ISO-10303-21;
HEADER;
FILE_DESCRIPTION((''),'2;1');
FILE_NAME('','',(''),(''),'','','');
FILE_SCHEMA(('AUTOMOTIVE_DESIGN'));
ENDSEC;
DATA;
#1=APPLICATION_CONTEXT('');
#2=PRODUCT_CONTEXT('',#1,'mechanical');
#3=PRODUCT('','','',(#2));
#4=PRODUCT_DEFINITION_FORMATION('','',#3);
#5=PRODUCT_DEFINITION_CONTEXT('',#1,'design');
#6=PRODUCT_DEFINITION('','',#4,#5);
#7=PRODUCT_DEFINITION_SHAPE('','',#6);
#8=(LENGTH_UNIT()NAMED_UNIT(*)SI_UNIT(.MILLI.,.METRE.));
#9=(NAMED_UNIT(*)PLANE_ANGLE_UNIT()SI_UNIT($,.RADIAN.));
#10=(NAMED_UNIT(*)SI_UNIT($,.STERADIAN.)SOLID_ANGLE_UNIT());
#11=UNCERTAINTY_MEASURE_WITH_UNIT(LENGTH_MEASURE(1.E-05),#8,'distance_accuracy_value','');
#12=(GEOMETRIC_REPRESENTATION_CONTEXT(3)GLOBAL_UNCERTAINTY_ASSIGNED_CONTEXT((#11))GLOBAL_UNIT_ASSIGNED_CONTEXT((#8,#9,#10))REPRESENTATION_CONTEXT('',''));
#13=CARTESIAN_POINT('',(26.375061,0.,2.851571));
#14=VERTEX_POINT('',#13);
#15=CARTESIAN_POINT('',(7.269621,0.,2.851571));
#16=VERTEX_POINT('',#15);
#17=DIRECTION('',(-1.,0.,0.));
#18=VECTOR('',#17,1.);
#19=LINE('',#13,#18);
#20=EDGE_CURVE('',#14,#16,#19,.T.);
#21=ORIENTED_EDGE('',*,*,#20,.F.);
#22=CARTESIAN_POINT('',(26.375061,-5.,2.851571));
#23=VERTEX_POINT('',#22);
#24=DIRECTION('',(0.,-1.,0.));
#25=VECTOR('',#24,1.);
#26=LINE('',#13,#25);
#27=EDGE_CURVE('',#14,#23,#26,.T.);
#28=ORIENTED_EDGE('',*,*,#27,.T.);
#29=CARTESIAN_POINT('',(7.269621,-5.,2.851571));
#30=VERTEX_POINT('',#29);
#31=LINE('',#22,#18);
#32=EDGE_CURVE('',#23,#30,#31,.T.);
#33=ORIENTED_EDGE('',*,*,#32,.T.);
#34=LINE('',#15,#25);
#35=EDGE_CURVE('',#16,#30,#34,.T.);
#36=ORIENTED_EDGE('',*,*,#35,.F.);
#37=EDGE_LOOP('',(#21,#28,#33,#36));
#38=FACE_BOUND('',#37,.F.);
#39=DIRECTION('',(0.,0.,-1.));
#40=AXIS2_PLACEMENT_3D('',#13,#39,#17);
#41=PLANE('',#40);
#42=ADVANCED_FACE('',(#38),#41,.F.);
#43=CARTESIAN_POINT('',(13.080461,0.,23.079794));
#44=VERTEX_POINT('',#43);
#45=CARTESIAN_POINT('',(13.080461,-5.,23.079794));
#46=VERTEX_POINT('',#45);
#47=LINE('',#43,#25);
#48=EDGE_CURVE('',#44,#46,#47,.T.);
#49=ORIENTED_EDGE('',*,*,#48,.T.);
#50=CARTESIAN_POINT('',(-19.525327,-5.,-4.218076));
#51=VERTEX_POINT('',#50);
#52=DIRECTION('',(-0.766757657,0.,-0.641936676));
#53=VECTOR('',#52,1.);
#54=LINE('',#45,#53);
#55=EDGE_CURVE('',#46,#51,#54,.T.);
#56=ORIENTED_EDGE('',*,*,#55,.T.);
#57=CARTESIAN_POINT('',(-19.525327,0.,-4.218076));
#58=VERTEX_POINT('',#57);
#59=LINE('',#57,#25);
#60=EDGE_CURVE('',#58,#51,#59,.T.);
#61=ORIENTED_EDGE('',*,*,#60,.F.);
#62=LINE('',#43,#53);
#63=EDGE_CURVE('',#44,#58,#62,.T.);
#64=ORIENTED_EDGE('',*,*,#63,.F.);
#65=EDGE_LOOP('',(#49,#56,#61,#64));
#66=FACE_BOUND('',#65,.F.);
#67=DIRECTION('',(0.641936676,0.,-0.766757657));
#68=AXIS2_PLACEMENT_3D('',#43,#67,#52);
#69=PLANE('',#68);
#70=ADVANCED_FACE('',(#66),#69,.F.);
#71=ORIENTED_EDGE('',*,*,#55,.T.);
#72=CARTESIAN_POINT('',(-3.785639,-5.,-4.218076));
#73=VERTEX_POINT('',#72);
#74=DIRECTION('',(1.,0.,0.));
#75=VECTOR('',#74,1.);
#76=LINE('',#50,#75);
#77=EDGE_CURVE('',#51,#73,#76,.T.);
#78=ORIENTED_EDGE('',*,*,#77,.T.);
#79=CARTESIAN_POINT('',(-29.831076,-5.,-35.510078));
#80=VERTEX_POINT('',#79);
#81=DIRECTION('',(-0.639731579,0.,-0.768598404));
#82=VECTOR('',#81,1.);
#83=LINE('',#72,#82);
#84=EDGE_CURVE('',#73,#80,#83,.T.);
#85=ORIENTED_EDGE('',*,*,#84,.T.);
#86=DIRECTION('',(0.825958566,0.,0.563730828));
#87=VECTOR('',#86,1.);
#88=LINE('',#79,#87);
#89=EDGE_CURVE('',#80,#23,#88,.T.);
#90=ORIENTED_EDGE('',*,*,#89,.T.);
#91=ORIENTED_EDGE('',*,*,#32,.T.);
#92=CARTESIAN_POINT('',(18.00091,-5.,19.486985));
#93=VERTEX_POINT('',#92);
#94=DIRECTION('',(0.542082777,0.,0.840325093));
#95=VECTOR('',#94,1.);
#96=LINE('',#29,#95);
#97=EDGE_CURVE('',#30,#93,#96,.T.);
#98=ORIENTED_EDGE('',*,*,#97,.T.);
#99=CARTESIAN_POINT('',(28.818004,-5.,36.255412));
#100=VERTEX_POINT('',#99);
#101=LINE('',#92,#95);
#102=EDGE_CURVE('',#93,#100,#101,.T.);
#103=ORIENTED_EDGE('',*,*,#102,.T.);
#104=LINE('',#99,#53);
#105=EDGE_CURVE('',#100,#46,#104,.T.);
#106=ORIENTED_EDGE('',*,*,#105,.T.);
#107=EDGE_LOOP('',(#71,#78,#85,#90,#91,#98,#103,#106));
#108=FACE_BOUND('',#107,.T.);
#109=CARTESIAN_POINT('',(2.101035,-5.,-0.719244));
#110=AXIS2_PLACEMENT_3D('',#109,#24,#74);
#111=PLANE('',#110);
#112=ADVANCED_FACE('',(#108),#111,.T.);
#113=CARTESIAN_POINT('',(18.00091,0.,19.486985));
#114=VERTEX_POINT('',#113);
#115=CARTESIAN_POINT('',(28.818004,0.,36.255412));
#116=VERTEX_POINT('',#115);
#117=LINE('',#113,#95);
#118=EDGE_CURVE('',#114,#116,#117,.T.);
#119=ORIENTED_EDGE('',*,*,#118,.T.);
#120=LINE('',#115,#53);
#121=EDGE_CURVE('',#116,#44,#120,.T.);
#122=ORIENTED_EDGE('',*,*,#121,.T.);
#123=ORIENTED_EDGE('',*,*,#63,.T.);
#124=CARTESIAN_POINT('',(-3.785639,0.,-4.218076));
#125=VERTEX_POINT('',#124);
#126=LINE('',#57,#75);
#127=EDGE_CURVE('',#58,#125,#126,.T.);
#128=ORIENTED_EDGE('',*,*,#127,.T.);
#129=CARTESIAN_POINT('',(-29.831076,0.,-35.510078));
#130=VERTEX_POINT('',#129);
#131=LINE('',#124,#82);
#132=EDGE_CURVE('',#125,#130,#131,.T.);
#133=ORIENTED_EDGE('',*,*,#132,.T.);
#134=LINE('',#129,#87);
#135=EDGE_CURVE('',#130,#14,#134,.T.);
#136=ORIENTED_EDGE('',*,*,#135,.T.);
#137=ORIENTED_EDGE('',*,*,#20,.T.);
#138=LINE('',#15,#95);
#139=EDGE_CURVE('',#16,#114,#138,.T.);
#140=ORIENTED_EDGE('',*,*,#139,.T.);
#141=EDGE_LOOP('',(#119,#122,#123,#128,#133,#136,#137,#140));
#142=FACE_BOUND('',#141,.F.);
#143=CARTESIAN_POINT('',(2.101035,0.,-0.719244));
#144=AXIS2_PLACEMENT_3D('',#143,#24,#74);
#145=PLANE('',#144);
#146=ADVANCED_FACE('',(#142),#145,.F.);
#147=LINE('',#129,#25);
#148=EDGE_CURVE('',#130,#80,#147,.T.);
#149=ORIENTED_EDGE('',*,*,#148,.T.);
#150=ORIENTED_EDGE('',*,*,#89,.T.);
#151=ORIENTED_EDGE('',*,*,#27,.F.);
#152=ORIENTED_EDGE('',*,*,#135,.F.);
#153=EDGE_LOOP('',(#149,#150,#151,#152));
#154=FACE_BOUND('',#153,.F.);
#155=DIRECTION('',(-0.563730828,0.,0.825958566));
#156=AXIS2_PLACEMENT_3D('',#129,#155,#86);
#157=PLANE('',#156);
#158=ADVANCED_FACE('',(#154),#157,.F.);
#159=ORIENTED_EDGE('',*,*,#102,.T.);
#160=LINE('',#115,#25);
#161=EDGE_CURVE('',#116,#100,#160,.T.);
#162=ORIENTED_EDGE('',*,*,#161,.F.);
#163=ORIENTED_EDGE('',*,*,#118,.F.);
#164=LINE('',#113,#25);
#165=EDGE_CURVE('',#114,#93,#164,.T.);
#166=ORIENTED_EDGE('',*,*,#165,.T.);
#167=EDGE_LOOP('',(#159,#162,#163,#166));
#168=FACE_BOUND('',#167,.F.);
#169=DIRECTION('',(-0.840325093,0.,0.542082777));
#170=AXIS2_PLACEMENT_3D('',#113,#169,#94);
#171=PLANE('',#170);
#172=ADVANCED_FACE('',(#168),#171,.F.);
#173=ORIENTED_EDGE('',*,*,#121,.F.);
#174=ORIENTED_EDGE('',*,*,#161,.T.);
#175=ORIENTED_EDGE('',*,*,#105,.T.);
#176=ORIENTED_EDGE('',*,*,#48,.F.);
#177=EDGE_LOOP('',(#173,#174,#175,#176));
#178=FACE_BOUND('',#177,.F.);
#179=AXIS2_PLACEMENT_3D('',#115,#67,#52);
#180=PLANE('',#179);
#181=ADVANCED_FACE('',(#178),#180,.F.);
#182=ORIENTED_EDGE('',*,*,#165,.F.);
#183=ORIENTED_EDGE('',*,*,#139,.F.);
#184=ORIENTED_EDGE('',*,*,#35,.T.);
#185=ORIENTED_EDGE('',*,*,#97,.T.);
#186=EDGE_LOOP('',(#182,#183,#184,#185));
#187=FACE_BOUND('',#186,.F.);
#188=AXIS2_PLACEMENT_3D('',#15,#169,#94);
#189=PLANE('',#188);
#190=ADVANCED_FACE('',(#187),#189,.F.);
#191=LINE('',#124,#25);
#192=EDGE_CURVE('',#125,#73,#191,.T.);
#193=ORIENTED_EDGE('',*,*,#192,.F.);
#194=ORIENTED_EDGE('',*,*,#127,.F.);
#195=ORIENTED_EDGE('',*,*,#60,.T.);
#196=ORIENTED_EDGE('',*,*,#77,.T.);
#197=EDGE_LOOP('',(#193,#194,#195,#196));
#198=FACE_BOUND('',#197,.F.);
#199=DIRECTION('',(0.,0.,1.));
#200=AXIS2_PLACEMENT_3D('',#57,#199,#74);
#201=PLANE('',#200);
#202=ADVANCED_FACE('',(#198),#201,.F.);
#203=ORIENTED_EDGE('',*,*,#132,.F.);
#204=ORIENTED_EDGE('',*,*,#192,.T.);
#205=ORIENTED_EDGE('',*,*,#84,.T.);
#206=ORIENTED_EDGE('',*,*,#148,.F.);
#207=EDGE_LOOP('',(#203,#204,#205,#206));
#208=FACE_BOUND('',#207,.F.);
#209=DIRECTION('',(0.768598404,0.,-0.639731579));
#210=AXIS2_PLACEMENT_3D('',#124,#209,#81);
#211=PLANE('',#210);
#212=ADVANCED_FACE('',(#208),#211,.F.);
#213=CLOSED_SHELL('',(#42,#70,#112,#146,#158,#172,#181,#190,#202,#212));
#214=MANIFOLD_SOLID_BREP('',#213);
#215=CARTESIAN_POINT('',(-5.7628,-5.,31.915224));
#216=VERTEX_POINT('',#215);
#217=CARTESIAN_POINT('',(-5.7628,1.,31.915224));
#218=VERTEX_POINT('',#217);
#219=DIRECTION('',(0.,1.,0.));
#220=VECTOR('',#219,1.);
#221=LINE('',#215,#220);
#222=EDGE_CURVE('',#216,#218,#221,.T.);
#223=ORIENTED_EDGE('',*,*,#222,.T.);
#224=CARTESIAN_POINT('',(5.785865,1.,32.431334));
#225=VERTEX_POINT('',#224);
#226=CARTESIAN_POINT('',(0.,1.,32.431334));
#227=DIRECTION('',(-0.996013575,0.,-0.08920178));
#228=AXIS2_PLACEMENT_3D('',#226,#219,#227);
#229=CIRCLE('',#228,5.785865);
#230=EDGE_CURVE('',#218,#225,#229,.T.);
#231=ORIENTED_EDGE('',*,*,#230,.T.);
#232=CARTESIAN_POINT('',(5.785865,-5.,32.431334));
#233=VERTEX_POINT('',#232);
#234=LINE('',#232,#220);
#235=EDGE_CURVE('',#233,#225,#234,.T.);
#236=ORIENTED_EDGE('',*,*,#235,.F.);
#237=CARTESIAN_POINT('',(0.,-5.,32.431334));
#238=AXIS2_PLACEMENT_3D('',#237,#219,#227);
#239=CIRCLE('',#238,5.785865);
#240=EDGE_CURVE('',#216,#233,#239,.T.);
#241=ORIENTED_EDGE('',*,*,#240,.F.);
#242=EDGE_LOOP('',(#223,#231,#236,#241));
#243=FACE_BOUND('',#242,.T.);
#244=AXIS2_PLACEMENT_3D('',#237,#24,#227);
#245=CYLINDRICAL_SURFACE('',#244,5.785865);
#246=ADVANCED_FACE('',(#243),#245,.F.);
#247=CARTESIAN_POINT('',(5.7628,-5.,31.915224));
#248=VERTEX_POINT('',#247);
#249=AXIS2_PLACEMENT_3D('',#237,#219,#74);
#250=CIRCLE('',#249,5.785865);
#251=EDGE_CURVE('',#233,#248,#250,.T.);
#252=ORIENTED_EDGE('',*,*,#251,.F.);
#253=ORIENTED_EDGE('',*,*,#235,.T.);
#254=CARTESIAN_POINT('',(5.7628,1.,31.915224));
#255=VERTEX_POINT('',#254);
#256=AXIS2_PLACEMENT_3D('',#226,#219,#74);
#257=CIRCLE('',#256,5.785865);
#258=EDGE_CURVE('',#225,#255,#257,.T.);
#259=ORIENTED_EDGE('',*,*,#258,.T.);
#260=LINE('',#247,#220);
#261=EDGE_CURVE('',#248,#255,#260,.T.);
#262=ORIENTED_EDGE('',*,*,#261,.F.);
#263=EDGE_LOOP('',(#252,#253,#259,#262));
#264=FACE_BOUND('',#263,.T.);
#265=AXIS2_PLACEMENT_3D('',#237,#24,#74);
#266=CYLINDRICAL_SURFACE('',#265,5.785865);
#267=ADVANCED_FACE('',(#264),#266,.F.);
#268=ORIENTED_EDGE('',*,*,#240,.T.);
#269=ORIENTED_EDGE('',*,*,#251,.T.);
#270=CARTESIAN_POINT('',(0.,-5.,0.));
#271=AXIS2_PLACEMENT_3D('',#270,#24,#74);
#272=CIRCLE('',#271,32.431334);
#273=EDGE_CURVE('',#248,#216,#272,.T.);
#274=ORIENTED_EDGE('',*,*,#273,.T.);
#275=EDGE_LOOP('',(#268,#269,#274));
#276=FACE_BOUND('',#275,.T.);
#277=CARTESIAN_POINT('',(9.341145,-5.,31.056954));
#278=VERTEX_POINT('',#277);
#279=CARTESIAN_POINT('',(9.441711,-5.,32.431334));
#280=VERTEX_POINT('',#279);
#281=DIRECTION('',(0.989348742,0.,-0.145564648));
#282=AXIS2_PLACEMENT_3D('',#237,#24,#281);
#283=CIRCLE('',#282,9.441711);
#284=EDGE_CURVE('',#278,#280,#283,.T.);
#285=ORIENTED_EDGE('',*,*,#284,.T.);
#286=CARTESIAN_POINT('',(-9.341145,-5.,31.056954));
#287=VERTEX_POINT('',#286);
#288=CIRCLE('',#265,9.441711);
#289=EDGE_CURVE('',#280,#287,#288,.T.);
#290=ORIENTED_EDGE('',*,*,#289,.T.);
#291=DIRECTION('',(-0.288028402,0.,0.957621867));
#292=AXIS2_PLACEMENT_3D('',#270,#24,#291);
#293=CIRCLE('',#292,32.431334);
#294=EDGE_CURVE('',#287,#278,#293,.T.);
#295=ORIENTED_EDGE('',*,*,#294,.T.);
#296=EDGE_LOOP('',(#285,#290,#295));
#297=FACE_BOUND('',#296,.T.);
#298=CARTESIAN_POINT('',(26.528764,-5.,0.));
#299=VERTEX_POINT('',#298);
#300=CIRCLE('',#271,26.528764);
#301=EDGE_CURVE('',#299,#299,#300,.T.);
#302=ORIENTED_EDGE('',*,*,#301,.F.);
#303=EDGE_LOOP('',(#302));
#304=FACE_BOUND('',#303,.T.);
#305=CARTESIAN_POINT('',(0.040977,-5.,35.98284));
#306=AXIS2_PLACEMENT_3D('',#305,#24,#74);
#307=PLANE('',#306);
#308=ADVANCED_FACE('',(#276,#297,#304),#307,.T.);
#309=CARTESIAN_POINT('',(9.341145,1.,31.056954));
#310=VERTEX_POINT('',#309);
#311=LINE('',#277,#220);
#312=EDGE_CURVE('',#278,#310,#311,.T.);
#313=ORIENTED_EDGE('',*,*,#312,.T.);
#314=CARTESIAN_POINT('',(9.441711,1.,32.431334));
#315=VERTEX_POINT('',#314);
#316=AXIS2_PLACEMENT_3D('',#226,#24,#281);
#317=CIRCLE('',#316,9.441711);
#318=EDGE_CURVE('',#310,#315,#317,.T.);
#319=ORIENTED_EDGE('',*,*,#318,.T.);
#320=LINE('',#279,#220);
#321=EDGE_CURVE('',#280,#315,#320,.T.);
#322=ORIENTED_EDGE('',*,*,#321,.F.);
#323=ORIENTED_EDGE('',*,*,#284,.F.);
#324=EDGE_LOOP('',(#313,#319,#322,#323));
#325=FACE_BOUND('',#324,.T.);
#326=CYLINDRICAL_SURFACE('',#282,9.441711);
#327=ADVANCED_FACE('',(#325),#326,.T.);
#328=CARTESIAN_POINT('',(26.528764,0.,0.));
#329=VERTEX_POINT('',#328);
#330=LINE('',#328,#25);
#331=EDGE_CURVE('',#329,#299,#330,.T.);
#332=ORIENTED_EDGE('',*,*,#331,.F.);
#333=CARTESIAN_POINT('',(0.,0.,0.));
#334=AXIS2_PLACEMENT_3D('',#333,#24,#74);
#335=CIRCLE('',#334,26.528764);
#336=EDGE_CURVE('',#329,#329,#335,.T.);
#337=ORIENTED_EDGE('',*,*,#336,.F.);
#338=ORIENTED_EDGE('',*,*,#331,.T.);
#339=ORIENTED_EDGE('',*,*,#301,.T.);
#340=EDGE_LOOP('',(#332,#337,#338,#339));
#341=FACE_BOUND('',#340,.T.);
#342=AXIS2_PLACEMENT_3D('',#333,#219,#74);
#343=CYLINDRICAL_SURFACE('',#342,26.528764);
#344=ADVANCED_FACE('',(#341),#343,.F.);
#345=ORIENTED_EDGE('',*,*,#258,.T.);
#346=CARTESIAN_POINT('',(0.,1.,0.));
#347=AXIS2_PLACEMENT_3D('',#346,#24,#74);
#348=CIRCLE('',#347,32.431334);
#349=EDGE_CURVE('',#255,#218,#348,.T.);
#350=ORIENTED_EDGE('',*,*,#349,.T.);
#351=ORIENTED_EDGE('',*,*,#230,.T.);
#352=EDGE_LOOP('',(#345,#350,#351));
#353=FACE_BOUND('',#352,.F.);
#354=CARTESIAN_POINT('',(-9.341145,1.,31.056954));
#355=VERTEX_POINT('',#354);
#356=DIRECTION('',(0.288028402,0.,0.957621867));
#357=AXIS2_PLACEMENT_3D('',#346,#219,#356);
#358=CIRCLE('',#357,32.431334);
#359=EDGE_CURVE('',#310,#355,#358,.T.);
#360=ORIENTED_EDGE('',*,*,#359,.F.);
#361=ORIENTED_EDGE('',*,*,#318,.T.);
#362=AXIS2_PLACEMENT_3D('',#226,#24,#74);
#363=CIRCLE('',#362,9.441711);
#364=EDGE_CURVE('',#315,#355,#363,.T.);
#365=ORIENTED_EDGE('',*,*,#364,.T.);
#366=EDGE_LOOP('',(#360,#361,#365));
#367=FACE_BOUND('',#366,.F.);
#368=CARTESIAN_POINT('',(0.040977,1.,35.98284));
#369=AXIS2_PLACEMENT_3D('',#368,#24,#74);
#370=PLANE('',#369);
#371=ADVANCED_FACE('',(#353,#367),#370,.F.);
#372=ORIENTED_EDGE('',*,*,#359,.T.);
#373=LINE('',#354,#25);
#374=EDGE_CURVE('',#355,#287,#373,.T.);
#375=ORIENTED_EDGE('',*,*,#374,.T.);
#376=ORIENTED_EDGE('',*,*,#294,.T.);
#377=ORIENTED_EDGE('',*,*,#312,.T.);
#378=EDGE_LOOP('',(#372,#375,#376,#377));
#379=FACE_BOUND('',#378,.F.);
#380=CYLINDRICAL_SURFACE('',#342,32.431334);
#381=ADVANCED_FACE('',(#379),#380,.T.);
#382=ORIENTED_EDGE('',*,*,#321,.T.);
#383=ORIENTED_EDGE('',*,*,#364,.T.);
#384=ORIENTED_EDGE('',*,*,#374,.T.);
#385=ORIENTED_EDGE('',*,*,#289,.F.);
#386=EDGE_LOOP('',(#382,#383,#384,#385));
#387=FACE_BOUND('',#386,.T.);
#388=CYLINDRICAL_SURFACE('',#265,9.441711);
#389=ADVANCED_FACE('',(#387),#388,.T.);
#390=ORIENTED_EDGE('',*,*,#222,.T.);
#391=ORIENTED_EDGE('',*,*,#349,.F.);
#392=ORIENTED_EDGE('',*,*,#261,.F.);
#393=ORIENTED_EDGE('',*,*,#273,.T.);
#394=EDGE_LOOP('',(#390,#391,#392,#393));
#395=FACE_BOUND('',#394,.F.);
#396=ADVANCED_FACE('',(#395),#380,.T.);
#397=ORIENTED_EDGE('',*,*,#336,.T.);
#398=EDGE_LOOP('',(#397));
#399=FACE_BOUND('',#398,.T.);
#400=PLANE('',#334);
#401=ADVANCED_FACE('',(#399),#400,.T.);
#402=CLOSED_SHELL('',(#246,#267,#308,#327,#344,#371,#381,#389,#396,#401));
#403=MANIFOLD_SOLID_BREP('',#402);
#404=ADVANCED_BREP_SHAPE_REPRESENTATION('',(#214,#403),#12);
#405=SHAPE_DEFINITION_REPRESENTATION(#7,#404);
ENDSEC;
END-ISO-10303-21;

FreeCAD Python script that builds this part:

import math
import FreeCAD as App
import Part
import Sketcher
from FreeCAD import Vector
Q = App.Units.Quantity


def add_polygon(sketch, points):
    """Adds a closed chain of lines whose ends are joined by coincident constraints."""
    first, n = sketch.GeometryCount, len(points)
    for a, b in zip(points, points[1:] + points[:1]):
        sketch.addGeometry(Part.LineSegment(App.Vector(*a, 0), App.Vector(*b, 0)), False)
    for i in range(n):
        sketch.addConstraint(Sketcher.Constraint("Coincident", first + i, 2, first + (i + 1) % n, 1))

doc = App.newDocument("Part")
params = doc.addObject("Spreadsheet::Sheet", "Params")
for row, (alias, value) in enumerate([
    ("pad1_length", "1 mm"),
    ("pad2_length", "5 mm"),
    ("pad3_length", "6 mm"),
    ("pad4_length", "5 mm"),
], start=1):
    params.set(f"A{row}", alias)
    params.set(f"B{row}", "=" + value)
    params.setAlias(f"B{row}", alias)

body = doc.addObject("PartDesign::Body", "Body")

# Sketch on XZ plane
sketch1 = body.newObject("Sketcher::SketchObject", "Sketch")
sketch1.AttachmentSupport = (doc.getObject("XZ_Plane"), [""])
sketch1.MapMode = "FlatFace"
sketch1.addGeometry(Part.Circle(Vector(0, 0, 0), Vector(0, 0, 1), 32.431334), False)
sketch1.addConstraint([
    Sketcher.Constraint("Coincident", 0, 3, -1, 1),
    Sketcher.Constraint("Diameter", 0, Q("64.862668 mm")),
])
pad1 = body.newObject("PartDesign::Pad", "Pad")
pad1.Profile = sketch1
pad1.setExpression("Length", "Params.pad1_length")
pad1.Reversed = True

# Sketch on XZ plane
sketch2 = body.newObject("Sketcher::SketchObject", "Sketch001")
sketch2.AttachmentSupport = (doc.getObject("XZ_Plane"), [""])
sketch2.MapMode = "FlatFace"
sketch2.addGeometry([
    Part.Circle(Vector(0, 0, 0), Vector(0, 0, 1), 32.431334),
    Part.Circle(Vector(0, 0, 0), Vector(0, 0, 1), 26.528764),
], False)
sketch2.addConstraint([
    Sketcher.Constraint("Coincident", 0, 3, -1, 1),
    Sketcher.Constraint("Coincident", 1, 3, -1, 1),
    Sketcher.Constraint("Diameter", 0, Q("64.862668 mm")),
    Sketcher.Constraint("Diameter", 1, Q("53.057528 mm")),
])
pad2 = body.newObject("PartDesign::Pad", "Pad001")
pad2.Profile = sketch2
pad2.setExpression("Length", "Params.pad2_length")

# Sketch on XZ plane
sketch3 = body.newObject("Sketcher::SketchObject", "Sketch002")
sketch3.AttachmentSupport = (doc.getObject("XZ_Plane"), [""])
sketch3.MapMode = "FlatFace"
sketch3.AttachmentOffset = App.Placement(Vector(0, 0, 5), App.Rotation())
sketch3.addGeometry([
    Part.ArcOfCircle(Part.Circle(Vector(0, 32.431334, 0), Vector(0, 0, 1), 5.785865), math.radians(0), math.radians(185.117688)),  # 0
    Part.ArcOfCircle(Part.Circle(Vector(0, 32.431334, 0), Vector(0, 0, 1), 5.785865), math.radians(-5.117688), math.radians(0)),  # 1
    Part.ArcOfCircle(Part.Circle(Vector(0, 0, 0), Vector(0, 0, 1), 32.431334), math.radians(73.260044), math.radians(79.764625)),  # 2
    Part.ArcOfCircle(Part.Circle(Vector(0, 32.431334, 0), Vector(0, 0, 1), 9.441711), math.radians(-8.369978), math.radians(0)),  # 3
    Part.ArcOfCircle(Part.Circle(Vector(0, 32.431334, 0), Vector(0, 0, 1), 9.441711), math.radians(0), math.radians(188.369978)),  # 4
    Part.ArcOfCircle(Part.Circle(Vector(0, 0, 0), Vector(0, 0, 1), 32.431334), math.radians(100.235375), math.radians(106.739956)),  # 5
], False)
sketch3.addConstraint([
    Sketcher.Constraint("Tangent", 0, 1, 1, 2),
    Sketcher.Constraint("Coincident", 1, 1, 2, 2),
    Sketcher.Constraint("Coincident", 2, 1, 3, 1),
    Sketcher.Constraint("Tangent", 3, 2, 4, 1),
    Sketcher.Constraint("Coincident", 4, 2, 5, 2),
    Sketcher.Constraint("Coincident", 5, 1, 0, 2),
    Sketcher.Constraint("Coincident", 2, 3, -1, 1),
    Sketcher.Constraint("Coincident", 5, 3, -1, 1),
    Sketcher.Constraint("Coincident", 3, 3, 0, 3),
    Sketcher.Constraint("Equal", 0, 1),
    Sketcher.Constraint("Equal", 3, 4),
    Sketcher.Constraint("Equal", 2, 5),
    Sketcher.Constraint("PointOnObject", 0, 3, -2),
    Sketcher.Constraint("Horizontal", 4, 3, 0, 1),
    Sketcher.Constraint("Horizontal", 0, 1, 3, 2),
    Sketcher.Constraint("Radius", 3, Q("9.441711 mm")),
    Sketcher.Constraint("Radius", 0, Q("5.785865 mm")),
    Sketcher.Constraint("Radius", 2, Q("32.431334 mm")),
    Sketcher.Constraint("DistanceX", -1, 1, 1, 1, Q("5.7628 mm")),
])
pad3 = body.newObject("PartDesign::Pad", "Pad002")
pad3.Profile = sketch3
pad3.setExpression("Length", "Params.pad3_length")
pad3.Reversed = True
body2 = doc.addObject("PartDesign::Body", "Body001")

# Sketch on XZ plane
sketch4 = body2.newObject("Sketcher::SketchObject", "Sketch003")
sketch4.AttachmentSupport = (doc.getObject("XZ_Plane001"), [""])
sketch4.MapMode = "FlatFace"
add_polygon(sketch4, [(13.080461, 23.079794), (-19.525327, -4.218076), (-3.785639, -4.218076), (-29.831076, -35.510078), (26.375061, 2.851571), (7.269621, 2.851571), (18.00091, 19.486985), (28.818004, 36.255412)])  # lines 0-7
sketch4.addConstraint([
    Sketcher.Constraint("Horizontal", 1),
    Sketcher.Constraint("Horizontal", 4),
    Sketcher.Constraint("Parallel", 5, 6),
    Sketcher.Constraint("Parallel", 0, 7),
    Sketcher.Constraint("DistanceY", 2, 2, 0, 2, Q("31.292002 mm")),
    Sketcher.Constraint("DistanceX", 1, 1, 1, 2, Q("15.739688 mm")),
    Sketcher.Constraint("DistanceX", 4, 2, 4, 1, Q("19.105441 mm")),
    Sketcher.Constraint("DistanceX", 1, 2, 3, 2, Q("30.1607 mm")),
    Sketcher.Constraint("DistanceX", 7, 2, 3, 2, Q("13.294601 mm")),
    Sketcher.Constraint("Distance", 0, Q("42.524241 mm")),
    Sketcher.Constraint("Distance", 2, Q("40.713071 mm")),
    Sketcher.Constraint("Distance", 6, Q("19.954691 mm")),
    Sketcher.Constraint("DistanceX", 1, 2, -1, 1, Q("3.785639 mm")),
    Sketcher.Constraint("DistanceY", 2, 2, -1, 1, Q("35.510078 mm")),
    Sketcher.Constraint("DistanceY", -1, 1, 3, 2, Q("2.851571 mm")),
    Sketcher.Constraint("DistanceX", -1, 1, 5, 2, Q("18.00091 mm")),
])
pad4 = body2.newObject("PartDesign::Pad", "Pad003")
pad4.Profile = sketch4
pad4.setExpression("Length", "Params.pad4_length")

doc.recompute()
